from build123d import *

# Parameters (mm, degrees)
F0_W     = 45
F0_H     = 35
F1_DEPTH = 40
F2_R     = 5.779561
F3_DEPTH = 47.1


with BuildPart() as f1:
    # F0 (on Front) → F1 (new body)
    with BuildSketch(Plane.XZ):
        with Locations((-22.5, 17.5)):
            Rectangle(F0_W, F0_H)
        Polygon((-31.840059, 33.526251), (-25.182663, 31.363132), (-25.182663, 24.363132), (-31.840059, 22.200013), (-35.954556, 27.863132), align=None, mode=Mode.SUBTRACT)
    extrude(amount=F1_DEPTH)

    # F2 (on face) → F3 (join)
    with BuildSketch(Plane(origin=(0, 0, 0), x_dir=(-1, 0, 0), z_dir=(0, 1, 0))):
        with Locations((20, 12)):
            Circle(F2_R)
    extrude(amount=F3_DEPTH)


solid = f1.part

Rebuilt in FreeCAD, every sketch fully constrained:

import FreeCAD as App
import Part
import Sketcher
Q = App.Units.Quantity


def add_polygon(sketch, points):
    """Adds a closed chain of lines whose ends are joined by coincident constraints."""
    first, n = sketch.GeometryCount, len(points)
    for a, b in zip(points, points[1:] + points[:1]):
        sketch.addGeometry(Part.LineSegment(App.Vector(*a, 0), App.Vector(*b, 0)), False)
    for i in range(n):
        sketch.addConstraint(Sketcher.Constraint("Coincident", first + i, 2, first + (i + 1) % n, 1))

doc = App.newDocument("Part")
body = doc.addObject("PartDesign::Body", "Body")

sketch1 = body.newObject("Sketcher::SketchObject", "Sketch")
sketch1.AttachmentSupport = (doc.getObject("XZ_Plane"), [""])
sketch1.MapMode = "FlatFace"
add_polygon(sketch1, [(-45, 35), (-45, 0), (0, 0), (0, 35)])
add_polygon(sketch1, [(-36, 28), (-32, 34), (-25, 31), (-25, 24), (-32, 22)])
sketch1.addConstraint([
    Sketcher.Constraint("Vertical", 0),
    Sketcher.Constraint("Horizontal", 1),
    Sketcher.Constraint("Vertical", 2),
    Sketcher.Constraint("Horizontal", 3),
    Sketcher.Constraint("Vertical", 6),
    Sketcher.Constraint("Coincident", 1, 2, -1, 1),
    Sketcher.Constraint("Vertical", 4, 2, 7, 2),
    Sketcher.Constraint("Equal", 4, 5),
    Sketcher.Constraint("Equal", 5, 7),
    Sketcher.Constraint("Equal", 7, 8),
    Sketcher.Constraint("DistanceX", 1, 1, 1, 2, Q("45 mm")),
    Sketcher.Constraint("DistanceY", 0, 2, 0, 1, Q("35 mm")),
    Sketcher.Constraint("DistanceY", 6, 2, 6, 1, Q("7 mm")),
    Sketcher.Constraint("Angle", 4, Q("53.999999 deg")),
    Sketcher.Constraint("Angle", 5, Q("-17.999999 deg")),
    Sketcher.Constraint("DistanceX", 4, 2, -1, 1, Q("31.840059 mm")),
    Sketcher.Constraint("DistanceY", -1, 1, 4, 2, Q("33.526251 mm")),
])
pad1 = body.newObject("PartDesign::Pad", "Pad")
pad1.Profile = sketch1
pad1.Length = 40

sketch2 = body.newObject("Sketcher::SketchObject", "Sketch001")
sketch2.AttachmentSupport = (doc.getObject("XZ_Plane"), [""])
sketch2.MapMode = "FlatFace"
sketch2.addGeometry(Part.Circle(App.Vector(-20, 12, 0), App.Vector(0, 0, 1), 6), False)
sketch2.addConstraint([
    Sketcher.Constraint("DistanceX", 0, 3, -1, 1, Q("20 mm")),
    Sketcher.Constraint("DistanceY", -1, 1, 0, 3, Q("12 mm")),
    Sketcher.Constraint("Diameter", 0, Q("11.559122 mm")),
])
pad2 = body.newObject("PartDesign::Pad", "Pad001")
pad2.Profile = sketch2
pad2.Length = 47.1
pad2.Reversed = True

doc.recompute()
